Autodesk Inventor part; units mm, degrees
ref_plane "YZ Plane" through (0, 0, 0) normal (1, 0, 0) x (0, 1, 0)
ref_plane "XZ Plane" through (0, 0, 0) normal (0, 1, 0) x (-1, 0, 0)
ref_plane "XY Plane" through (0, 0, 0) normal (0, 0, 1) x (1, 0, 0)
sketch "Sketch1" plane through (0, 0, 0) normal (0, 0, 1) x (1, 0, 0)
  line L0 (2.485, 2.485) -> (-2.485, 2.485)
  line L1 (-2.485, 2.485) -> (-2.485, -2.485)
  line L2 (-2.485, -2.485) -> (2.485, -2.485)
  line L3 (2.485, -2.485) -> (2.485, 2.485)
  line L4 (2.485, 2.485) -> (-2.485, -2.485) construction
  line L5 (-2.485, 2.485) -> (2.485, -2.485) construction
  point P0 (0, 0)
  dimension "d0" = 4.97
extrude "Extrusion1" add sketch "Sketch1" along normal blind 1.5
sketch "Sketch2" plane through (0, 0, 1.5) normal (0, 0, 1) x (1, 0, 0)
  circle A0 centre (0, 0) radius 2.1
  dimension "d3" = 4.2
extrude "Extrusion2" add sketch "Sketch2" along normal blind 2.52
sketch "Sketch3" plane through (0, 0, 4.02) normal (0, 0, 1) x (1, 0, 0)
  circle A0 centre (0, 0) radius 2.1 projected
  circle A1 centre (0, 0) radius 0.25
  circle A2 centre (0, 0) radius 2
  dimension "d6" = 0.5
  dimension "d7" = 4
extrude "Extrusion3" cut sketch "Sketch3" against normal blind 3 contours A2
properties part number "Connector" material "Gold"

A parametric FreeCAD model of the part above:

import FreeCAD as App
import Part
import Sketcher
Q = App.Units.Quantity

doc = App.newDocument("Part")
body = doc.addObject("PartDesign::Body", "Body")

# Sketch on XY plane
sketch1 = body.newObject("Sketcher::SketchObject", "Sketch")
sketch1.AttachmentSupport = (doc.getObject("XY_Plane"), [""])
sketch1.MapMode = "FlatFace"
sketch1.addGeometry([
    Part.LineSegment(App.Vector(2.485, -2.485, 0), App.Vector(2.485, 2.485, 0)),
    Part.LineSegment(App.Vector(2.485, 2.485, 0), App.Vector(-2.485, 2.485, 0)),
    Part.LineSegment(App.Vector(-2.485, 2.485, 0), App.Vector(-2.485, -2.485, 0)),
    Part.LineSegment(App.Vector(-2.485, -2.485, 0), App.Vector(2.485, -2.485, 0)),
], False)
sketch1.addConstraint([
    Sketcher.Constraint("Coincident", 0, 2, 1, 1),
    Sketcher.Constraint("Coincident", 1, 2, 2, 1),
    Sketcher.Constraint("Coincident", 2, 2, 3, 1),
    Sketcher.Constraint("Coincident", 3, 2, 0, 1),
    Sketcher.Constraint("Vertical", 0),
    Sketcher.Constraint("Horizontal", 1),
    Sketcher.Constraint("Vertical", 2),
    Sketcher.Constraint("Horizontal", 3),
    Sketcher.Constraint("Symmetric", 0, 2, 2, 2, -1, 1),
    Sketcher.Constraint("Equal", 3, 0),
    Sketcher.Constraint("DistanceX", 1, 2, 1, 1, Q("4.97 mm")),
])
pad1 = body.newObject("PartDesign::Pad", "Pad")
pad1.Profile = sketch1
pad1.Length = 1.5

# Sketch on XY plane
sketch2 = body.newObject("Sketcher::SketchObject", "Sketch001")
sketch2.AttachmentSupport = (doc.getObject("XY_Plane"), [""])
sketch2.MapMode = "FlatFace"
sketch2.AttachmentOffset = App.Placement(App.Vector(0, 0, 1.5), App.Rotation())
sketch2.addGeometry(Part.Circle(App.Vector(0, 0, 0), App.Vector(0, 0, 1), 2.1), False)
sketch2.addConstraint([
    Sketcher.Constraint("Coincident", 0, 3, -1, 1),
    Sketcher.Constraint("Diameter", 0, Q("4.2 mm")),
])
pad2 = body.newObject("PartDesign::Pad", "Pad001")
pad2.Profile = sketch2
pad2.Length = 2.52

# Sketch on XY plane
sketch3 = body.newObject("Sketcher::SketchObject", "Sketch002")
sketch3.AttachmentSupport = (doc.getObject("XY_Plane"), [""])
sketch3.MapMode = "FlatFace"
sketch3.AttachmentOffset = App.Placement(App.Vector(0, 0, 4.02), App.Rotation())
sketch3.addGeometry([
    Part.Circle(App.Vector(0, 0, 0), App.Vector(0, 0, 1), 2),
    Part.Circle(App.Vector(0, 0, 0), App.Vector(0, 0, 1), 0.25),
], False)
sketch3.addConstraint([
    Sketcher.Constraint("Coincident", 0, 3, -1, 1),
    Sketcher.Constraint("Coincident", 1, 3, -1, 1),
    Sketcher.Constraint("Diameter", 0, Q("4 mm")),
    Sketcher.Constraint("Diameter", 1, Q("0.5 mm")),
])
pocket1 = body.newObject("PartDesign::Pocket", "Pocket")
pocket1.Profile = sketch3
pocket1.Length = 3

doc.recompute()
